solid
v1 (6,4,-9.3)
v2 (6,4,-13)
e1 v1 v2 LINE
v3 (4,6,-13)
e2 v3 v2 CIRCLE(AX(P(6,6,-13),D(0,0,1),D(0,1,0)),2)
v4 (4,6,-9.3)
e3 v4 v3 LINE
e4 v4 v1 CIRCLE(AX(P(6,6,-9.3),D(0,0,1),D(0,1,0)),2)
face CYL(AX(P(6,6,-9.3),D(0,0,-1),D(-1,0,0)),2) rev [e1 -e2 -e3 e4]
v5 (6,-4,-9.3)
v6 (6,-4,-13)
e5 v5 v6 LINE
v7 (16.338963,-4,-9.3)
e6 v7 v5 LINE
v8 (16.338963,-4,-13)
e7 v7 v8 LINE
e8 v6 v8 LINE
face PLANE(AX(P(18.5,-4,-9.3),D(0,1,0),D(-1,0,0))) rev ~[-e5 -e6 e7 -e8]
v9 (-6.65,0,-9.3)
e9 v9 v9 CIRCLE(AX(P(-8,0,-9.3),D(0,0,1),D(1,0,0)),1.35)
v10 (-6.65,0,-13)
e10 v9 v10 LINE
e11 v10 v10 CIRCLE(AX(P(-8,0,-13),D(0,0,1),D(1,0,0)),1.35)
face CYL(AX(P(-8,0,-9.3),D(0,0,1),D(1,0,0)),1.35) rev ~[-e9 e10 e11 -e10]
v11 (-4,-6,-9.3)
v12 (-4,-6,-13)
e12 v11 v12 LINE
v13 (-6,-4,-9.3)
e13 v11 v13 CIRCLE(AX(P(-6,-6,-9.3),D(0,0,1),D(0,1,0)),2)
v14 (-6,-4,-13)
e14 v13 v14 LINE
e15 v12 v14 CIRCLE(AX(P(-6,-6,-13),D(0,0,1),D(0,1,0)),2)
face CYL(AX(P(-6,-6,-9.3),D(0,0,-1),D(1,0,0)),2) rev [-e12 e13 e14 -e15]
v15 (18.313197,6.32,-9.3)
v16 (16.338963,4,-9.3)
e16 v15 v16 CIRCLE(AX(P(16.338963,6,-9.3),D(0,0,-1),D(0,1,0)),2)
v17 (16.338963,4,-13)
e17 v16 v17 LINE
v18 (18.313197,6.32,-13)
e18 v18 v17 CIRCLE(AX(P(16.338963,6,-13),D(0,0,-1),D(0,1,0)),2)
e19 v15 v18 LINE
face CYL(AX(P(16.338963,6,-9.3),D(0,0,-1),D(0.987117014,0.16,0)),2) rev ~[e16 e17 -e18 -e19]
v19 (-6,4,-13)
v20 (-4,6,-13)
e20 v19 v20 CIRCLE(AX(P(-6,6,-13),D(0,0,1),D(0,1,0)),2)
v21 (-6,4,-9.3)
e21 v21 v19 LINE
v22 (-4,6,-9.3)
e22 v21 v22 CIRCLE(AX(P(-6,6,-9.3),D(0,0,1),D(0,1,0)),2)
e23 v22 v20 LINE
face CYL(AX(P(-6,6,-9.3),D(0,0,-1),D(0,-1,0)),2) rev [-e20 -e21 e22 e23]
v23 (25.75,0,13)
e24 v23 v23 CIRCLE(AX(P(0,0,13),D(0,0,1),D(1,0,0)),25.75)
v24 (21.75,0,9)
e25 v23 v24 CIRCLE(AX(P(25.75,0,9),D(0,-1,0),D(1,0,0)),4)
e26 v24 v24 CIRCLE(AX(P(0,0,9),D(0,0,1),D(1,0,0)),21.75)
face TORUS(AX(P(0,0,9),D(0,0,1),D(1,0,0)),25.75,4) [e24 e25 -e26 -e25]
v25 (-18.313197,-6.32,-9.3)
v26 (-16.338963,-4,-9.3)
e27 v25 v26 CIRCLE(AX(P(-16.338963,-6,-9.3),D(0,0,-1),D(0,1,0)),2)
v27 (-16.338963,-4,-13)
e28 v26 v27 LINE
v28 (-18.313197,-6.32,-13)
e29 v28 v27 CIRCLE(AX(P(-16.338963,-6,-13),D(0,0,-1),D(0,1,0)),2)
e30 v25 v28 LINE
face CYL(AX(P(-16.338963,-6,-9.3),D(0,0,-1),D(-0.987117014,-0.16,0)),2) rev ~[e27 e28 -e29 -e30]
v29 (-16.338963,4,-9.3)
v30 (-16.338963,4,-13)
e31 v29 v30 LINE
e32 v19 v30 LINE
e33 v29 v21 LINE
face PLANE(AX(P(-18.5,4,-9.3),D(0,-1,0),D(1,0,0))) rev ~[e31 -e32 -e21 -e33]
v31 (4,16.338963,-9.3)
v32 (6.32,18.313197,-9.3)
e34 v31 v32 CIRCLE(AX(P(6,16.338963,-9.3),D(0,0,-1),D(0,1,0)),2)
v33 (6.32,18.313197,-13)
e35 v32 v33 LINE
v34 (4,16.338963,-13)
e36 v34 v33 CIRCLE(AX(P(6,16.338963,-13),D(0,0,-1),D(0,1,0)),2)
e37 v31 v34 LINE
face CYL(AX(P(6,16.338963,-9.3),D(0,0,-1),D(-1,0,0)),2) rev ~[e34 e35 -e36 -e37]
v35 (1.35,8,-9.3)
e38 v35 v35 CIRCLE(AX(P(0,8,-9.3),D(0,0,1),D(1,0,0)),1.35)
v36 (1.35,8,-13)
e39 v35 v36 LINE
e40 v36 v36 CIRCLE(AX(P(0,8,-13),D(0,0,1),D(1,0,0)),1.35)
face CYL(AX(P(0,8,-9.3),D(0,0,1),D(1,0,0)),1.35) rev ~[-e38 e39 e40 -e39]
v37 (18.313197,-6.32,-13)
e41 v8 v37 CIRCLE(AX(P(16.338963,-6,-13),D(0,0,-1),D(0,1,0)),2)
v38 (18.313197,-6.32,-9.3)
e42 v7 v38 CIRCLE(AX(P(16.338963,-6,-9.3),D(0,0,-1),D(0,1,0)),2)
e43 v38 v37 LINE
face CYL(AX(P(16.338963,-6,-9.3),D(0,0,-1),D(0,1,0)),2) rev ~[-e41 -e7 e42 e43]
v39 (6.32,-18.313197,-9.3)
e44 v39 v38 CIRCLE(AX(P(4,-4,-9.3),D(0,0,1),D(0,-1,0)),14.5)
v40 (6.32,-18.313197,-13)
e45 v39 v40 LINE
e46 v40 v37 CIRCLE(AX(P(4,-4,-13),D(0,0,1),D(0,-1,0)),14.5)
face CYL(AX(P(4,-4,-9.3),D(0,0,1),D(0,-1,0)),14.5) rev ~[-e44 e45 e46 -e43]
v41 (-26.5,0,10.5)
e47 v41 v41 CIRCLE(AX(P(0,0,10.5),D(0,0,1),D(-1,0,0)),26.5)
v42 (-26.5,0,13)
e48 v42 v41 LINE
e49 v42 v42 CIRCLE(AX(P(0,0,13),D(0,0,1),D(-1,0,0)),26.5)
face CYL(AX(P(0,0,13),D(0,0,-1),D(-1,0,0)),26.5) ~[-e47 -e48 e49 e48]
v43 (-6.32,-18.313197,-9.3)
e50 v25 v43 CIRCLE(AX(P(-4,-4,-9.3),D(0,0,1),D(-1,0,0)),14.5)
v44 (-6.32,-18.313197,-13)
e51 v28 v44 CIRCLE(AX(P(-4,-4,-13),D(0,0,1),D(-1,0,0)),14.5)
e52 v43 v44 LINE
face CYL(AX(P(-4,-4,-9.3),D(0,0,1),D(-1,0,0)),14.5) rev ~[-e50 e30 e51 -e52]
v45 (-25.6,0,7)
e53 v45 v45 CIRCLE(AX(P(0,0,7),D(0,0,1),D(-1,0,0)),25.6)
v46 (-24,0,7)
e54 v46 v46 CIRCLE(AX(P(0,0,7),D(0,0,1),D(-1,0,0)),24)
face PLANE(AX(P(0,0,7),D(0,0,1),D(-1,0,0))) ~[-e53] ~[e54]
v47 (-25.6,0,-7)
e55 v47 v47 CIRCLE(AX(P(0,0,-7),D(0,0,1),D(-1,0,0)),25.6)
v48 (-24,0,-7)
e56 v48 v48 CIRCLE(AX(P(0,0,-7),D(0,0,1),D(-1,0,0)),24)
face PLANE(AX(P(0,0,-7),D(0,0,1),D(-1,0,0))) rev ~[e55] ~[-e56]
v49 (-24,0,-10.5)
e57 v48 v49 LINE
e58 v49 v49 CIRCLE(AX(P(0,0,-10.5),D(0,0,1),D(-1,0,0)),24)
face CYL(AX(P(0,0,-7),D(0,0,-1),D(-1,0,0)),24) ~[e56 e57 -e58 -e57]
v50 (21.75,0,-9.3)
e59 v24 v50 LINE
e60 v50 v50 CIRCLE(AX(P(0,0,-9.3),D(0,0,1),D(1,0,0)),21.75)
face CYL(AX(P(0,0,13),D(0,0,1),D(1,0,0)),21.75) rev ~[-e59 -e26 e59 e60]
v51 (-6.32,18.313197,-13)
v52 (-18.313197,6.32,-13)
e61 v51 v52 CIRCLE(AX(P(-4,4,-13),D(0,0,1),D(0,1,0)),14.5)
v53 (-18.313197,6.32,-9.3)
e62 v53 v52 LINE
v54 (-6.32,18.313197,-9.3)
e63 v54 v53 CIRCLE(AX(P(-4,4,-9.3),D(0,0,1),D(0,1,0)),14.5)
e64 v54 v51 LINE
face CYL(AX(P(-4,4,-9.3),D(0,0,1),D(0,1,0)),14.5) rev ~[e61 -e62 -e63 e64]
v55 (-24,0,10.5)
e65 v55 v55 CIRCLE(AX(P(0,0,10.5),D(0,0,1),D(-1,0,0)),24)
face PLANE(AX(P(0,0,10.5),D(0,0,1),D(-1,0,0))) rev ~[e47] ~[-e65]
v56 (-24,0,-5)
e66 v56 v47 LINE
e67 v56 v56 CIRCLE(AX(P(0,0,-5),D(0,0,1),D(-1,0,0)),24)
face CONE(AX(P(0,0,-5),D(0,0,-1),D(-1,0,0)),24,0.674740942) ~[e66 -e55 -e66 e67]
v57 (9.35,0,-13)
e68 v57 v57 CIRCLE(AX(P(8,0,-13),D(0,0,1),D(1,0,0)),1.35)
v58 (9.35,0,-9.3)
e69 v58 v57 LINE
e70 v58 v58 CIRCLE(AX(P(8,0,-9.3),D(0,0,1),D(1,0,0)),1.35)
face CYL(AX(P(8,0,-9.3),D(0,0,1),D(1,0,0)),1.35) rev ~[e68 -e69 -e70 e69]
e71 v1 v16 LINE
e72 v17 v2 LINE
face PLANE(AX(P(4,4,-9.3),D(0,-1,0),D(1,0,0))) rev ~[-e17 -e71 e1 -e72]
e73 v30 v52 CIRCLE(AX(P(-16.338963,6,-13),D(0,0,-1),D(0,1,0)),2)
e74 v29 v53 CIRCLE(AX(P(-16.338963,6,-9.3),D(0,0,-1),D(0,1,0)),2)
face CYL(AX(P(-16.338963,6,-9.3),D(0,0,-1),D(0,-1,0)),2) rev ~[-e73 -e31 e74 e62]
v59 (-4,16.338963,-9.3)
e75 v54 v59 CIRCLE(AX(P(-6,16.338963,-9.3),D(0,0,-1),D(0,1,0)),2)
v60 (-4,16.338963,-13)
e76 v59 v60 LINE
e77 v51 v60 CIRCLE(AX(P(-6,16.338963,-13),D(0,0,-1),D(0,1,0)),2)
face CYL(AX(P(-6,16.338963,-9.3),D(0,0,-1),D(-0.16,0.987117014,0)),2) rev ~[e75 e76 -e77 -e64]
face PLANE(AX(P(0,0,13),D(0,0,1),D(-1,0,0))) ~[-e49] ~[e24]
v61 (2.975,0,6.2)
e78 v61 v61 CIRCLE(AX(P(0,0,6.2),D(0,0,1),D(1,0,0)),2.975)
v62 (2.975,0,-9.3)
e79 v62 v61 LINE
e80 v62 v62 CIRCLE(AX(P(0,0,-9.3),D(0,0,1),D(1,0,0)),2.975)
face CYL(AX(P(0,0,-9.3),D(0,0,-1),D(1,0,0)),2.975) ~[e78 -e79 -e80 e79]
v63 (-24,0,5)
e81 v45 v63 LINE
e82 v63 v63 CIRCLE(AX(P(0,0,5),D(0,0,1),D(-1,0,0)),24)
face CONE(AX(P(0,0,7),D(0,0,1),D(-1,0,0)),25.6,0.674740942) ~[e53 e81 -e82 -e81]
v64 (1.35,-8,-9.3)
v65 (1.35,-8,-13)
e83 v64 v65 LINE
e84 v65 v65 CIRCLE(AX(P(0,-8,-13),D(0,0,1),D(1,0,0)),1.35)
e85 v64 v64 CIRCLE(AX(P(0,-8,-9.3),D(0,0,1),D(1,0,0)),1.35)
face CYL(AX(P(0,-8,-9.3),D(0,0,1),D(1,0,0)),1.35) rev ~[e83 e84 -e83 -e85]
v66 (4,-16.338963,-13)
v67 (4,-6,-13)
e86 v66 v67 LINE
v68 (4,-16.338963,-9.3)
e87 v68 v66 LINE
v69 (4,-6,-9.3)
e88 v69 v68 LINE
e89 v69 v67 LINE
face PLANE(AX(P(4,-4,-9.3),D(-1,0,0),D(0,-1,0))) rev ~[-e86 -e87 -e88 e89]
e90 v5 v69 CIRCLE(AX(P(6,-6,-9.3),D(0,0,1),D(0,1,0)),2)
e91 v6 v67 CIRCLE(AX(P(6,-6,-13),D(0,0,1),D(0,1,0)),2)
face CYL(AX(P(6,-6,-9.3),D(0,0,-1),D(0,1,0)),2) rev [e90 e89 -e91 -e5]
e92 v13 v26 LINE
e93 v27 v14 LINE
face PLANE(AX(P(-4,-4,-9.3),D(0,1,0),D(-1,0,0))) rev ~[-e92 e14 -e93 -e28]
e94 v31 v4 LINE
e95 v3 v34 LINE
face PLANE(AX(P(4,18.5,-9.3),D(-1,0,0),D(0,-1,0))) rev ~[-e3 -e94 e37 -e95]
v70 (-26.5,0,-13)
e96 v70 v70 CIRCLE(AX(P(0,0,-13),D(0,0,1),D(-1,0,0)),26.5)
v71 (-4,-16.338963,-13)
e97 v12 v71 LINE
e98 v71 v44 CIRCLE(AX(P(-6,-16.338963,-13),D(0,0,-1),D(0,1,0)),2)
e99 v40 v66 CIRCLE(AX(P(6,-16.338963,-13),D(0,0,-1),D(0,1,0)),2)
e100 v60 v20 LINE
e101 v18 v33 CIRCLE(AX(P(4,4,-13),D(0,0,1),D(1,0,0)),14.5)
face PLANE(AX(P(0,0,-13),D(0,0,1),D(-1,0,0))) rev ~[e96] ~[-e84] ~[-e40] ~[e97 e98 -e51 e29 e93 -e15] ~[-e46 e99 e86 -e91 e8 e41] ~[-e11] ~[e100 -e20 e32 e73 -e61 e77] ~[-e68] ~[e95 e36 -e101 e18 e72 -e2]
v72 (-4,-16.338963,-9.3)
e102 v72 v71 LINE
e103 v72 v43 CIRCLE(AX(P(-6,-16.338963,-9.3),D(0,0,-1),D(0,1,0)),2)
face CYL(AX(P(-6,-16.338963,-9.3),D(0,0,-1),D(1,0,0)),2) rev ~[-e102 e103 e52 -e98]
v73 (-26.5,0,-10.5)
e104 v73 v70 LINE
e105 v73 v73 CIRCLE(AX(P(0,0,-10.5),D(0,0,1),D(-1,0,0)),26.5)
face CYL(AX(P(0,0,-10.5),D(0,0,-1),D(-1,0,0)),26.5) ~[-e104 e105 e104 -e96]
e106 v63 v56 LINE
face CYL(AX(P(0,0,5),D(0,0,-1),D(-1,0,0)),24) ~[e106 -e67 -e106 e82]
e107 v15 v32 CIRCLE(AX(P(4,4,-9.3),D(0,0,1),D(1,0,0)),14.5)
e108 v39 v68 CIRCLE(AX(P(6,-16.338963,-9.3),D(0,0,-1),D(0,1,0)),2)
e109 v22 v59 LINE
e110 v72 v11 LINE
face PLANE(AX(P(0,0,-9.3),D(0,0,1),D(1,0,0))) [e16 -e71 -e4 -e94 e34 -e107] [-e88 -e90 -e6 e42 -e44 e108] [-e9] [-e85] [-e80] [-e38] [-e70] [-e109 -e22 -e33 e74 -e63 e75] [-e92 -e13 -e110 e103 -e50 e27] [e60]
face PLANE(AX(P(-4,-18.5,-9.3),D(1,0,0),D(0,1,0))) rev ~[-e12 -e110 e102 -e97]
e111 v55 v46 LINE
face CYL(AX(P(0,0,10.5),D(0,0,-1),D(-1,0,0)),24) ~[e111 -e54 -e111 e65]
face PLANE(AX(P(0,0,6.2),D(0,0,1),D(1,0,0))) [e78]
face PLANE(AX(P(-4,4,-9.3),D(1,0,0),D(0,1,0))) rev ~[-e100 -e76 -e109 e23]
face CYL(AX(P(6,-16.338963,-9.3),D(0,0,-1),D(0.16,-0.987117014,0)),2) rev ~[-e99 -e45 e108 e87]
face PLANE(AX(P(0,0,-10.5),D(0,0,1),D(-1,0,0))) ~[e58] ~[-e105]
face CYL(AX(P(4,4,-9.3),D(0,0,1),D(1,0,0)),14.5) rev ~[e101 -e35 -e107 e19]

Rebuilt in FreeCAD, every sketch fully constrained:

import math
import FreeCAD as App
import Part
import Sketcher

V = App.Vector


def edges_at(feature, points):
    """Names of the edges that pass closest to the given points."""
    edges = feature.Shape.Edges
    near = lambda p: min(range(len(edges)), key=lambda i: edges[i].distToShape(Part.Vertex(*p))[0])
    return sorted({f"Edge{near(p) + 1}" for p in points})

doc = App.newDocument("Part")
body = doc.addObject("PartDesign::Body", "Body")

# Sketch on YZ plane
sketch1 = body.newObject("Sketcher::SketchObject", "Sketch")
sketch1.AttachmentSupport = (doc.getObject("YZ_Plane"), [""])
sketch1.MapMode = "FlatFace"
sketch1.addGeometry([
    Part.LineSegment(V(24, -5, 0), V(24, 5, 0)),  # 0
    Part.LineSegment(V(24, 5, 0), V(25.6, 7, 0)),  # 1
    Part.LineSegment(V(25.6, 7, 0), V(24, 7, 0)),  # 2
    Part.LineSegment(V(24, 7, 0), V(24, 10.5, 0)),  # 3
    Part.LineSegment(V(24, 10.5, 0), V(26.5, 10.5, 0)),  # 4
    Part.LineSegment(V(26.5, 10.5, 0), V(26.5, 13, 0)),  # 5
    Part.LineSegment(V(26.5, 13, 0), V(0, 13, 0)),  # 6
    Part.LineSegment(V(0, 13, 0), V(0, -13, 0)),  # 7
    Part.LineSegment(V(0, -13, 0), V(26.5, -13, 0)),  # 8
    Part.LineSegment(V(26.5, -13, 0), V(26.5, -10.5, 0)),  # 9
    Part.LineSegment(V(26.5, -10.5, 0), V(24, -10.5, 0)),  # 10
    Part.LineSegment(V(24, -10.5, 0), V(24, -7, 0)),  # 11
    Part.LineSegment(V(24, -7, 0), V(25.6, -7, 0)),  # 12
    Part.LineSegment(V(25.6, -7, 0), V(24, -5, 0)),  # 13
], False)
sketch1.addConstraint([
    Sketcher.Constraint("Coincident", 0, 2, 1, 1),
    Sketcher.Constraint("Coincident", 1, 2, 2, 1),
    Sketcher.Constraint("Coincident", 2, 2, 3, 1),
    Sketcher.Constraint("Coincident", 3, 2, 4, 1),
    Sketcher.Constraint("Coincident", 4, 2, 5, 1),
    Sketcher.Constraint("Coincident", 5, 2, 6, 1),
    Sketcher.Constraint("Coincident", 6, 2, 7, 1),
    Sketcher.Constraint("Coincident", 7, 2, 8, 1),
    Sketcher.Constraint("Coincident", 8, 2, 9, 1),
    Sketcher.Constraint("Coincident", 9, 2, 10, 1),
    Sketcher.Constraint("Coincident", 10, 2, 11, 1),
    Sketcher.Constraint("Coincident", 11, 2, 12, 1),
    Sketcher.Constraint("Coincident", 12, 2, 13, 1),
    Sketcher.Constraint("Coincident", 13, 2, 0, 1),
    Sketcher.Constraint("Vertical", 0),
    Sketcher.Constraint("Horizontal", 2),
    Sketcher.Constraint("Vertical", 3),
    Sketcher.Constraint("Horizontal", 4),
    Sketcher.Constraint("Vertical", 5),
    Sketcher.Constraint("Horizontal", 6),
    Sketcher.Constraint("Vertical", 7),
    Sketcher.Constraint("Horizontal", 8),
    Sketcher.Constraint("Vertical", 9),
    Sketcher.Constraint("Horizontal", 10),
    Sketcher.Constraint("Vertical", 11),
    Sketcher.Constraint("Horizontal", 12),
    Sketcher.Constraint("Symmetric", 6, 2, 7, 2, -1, 1),
    Sketcher.Constraint("Symmetric", 4, 2, 9, 2, -1),
    Sketcher.Constraint("Symmetric", 2, 2, 11, 2, -1),
    Sketcher.Constraint("Vertical", 0, 2, 2, 2),
    Sketcher.Constraint("Vertical", 1, 2, 12, 2),
    Sketcher.Constraint("Equal", 10, 5),
    Sketcher.Constraint("Equal", 1, 13),
    Sketcher.Constraint("DistanceY", 0, 1, 0, 2, 10.0),
    Sketcher.Constraint("DistanceY", 7, 2, 7, 1, 26.0),
    Sketcher.Constraint("DistanceX", 2, 2, 2, 1, 1.6),
    Sketcher.Constraint("DistanceX", 4, 1, 4, 2, 2.5),
    Sketcher.Constraint("DistanceX", 6, 2, 6, 1, 26.5),
    Sketcher.Constraint("DistanceY", 3, 1, 3, 2, 3.5),
])
revolution = body.newObject("PartDesign::Revolution", "Revolution")
revolution.Profile = sketch1
revolution.ReferenceAxis = (sketch1, ["V_Axis"])
revolution.Angle = 360

# Sketch on XY plane
sketch2 = body.newObject("Sketcher::SketchObject", "Sketch001")
sketch2.AttachmentSupport = (doc.getObject("XY_Plane"), [""])
sketch2.MapMode = "FlatFace"
sketch2.AttachmentOffset = App.Placement(V(0, 0, 13), App.Rotation())
sketch2.addGeometry(Part.Circle(V(0, 0, 0), V(0, 0, 1), 22), False)
sketch2.addConstraint([
    Sketcher.Constraint("Coincident", 0, 3, -1, 1),
    Sketcher.Constraint("Diameter", 0, 43.5),
])
pocket1 = body.newObject("PartDesign::Pocket", "Pocket")
pocket1.Profile = sketch2
pocket1.Length = 22.3
doc.recompute()

fillet = body.newObject("PartDesign::Fillet", "Fillet")
fillet.Base = (pocket1, edges_at(pocket1, [(-21.75, 0, 13)]))
fillet.Radius = 4

# Sketch on XY plane
sketch3 = body.newObject("Sketcher::SketchObject", "Sketch002")
sketch3.AttachmentSupport = (doc.getObject("XY_Plane"), [""])
sketch3.MapMode = "FlatFace"
sketch3.AttachmentOffset = App.Placement(V(0, 0, -9.3), App.Rotation())
sketch3.addGeometry(Part.Circle(V(8, 0, 0), V(0, 0, 1), 1.4), False)
sketch3.addConstraint([
    Sketcher.Constraint("PointOnObject", 0, 3, -1),
    Sketcher.Constraint("Diameter", 0, 2.7),
    Sketcher.Constraint("DistanceX", -1, 1, 0, 3, 8.0),
])
pocket2 = body.newObject("PartDesign::Pocket", "Pocket001")
pocket2.Profile = sketch3
pocket2.Type = "UpToFirst"

# Sketch on XY plane
sketch4 = body.newObject("Sketcher::SketchObject", "Sketch003")
sketch4.AttachmentSupport = (doc.getObject("XY_Plane"), [""])
sketch4.MapMode = "FlatFace"
sketch4.AttachmentOffset = App.Placement(V(0, 0, -9.3), App.Rotation())
sketch4.addGeometry([
    Part.LineSegment(V(-18, 4, 0), V(-4, 4, 0)),
    Part.LineSegment(V(-4, 4, 0), V(-4, 18, 0)),
    Part.ArcOfCircle(Part.Circle(V(-4, 4, 0), V(0, 0, 1), 15), math.radians(90), math.radians(180)),
], False)
sketch4.addConstraint([
    Sketcher.Constraint("Coincident", 0, 2, 1, 1),
    Sketcher.Constraint("Coincident", 1, 2, 2, 1),
    Sketcher.Constraint("Coincident", 2, 2, 0, 1),
    Sketcher.Constraint("Horizontal", 0),
    Sketcher.Constraint("Vertical", 1),
    Sketcher.Constraint("Coincident", 0, 2, 2, 3),
    Sketcher.Constraint("Radius", 2, 14.5),
    Sketcher.Constraint("DistanceX", 2, 3, -1, 1, 4.0),
    Sketcher.Constraint("DistanceY", -1, 1, 2, 3, 4.0),
])
pocket3 = body.newObject("PartDesign::Pocket", "Pocket002")
pocket3.Profile = sketch4
pocket3.Type = "UpToFirst"

# Sketch on XY plane
sketch5 = body.newObject("Sketcher::SketchObject", "Sketch004")
sketch5.AttachmentSupport = (doc.getObject("XY_Plane"), [""])
sketch5.MapMode = "FlatFace"
sketch5.AttachmentOffset = App.Placement(V(0, 0, -9.3), App.Rotation())
sketch5.addGeometry([
    Part.LineSegment(V(4, 18, 0), V(4, 4, 0)),
    Part.LineSegment(V(4, 4, 0), V(18, 4, 0)),
    Part.ArcOfCircle(Part.Circle(V(4, 4, 0), V(0, 0, 1), 15), math.radians(0), math.radians(90)),
], False)
sketch5.addConstraint([
    Sketcher.Constraint("Coincident", 0, 2, 1, 1),
    Sketcher.Constraint("Coincident", 1, 2, 2, 1),
    Sketcher.Constraint("Coincident", 2, 2, 0, 1),
    Sketcher.Constraint("Vertical", 0),
    Sketcher.Constraint("Horizontal", 1),
    Sketcher.Constraint("Coincident", 0, 2, 2, 3),
    Sketcher.Constraint("Radius", 2, 14.5),
    Sketcher.Constraint("DistanceX", -1, 1, 2, 3, 4.0),
    Sketcher.Constraint("DistanceY", -1, 1, 2, 3, 4.0),
])
pocket4 = body.newObject("PartDesign::Pocket", "Pocket003")
pocket4.Profile = sketch5
pocket4.Type = "UpToFirst"

# Sketch on XY plane
sketch6 = body.newObject("Sketcher::SketchObject", "Sketch005")
sketch6.AttachmentSupport = (doc.getObject("XY_Plane"), [""])
sketch6.MapMode = "FlatFace"
sketch6.AttachmentOffset = App.Placement(V(0, 0, -9.3), App.Rotation())
sketch6.addGeometry([
    Part.LineSegment(V(18, -4, 0), V(4, -4, 0)),
    Part.LineSegment(V(4, -4, 0), V(4, -18, 0)),
    Part.ArcOfCircle(Part.Circle(V(4, -4, 0), V(0, 0, 1), 15), math.radians(-90), math.radians(0)),
], False)
sketch6.addConstraint([
    Sketcher.Constraint("Coincident", 0, 2, 1, 1),
    Sketcher.Constraint("Coincident", 1, 2, 2, 1),
    Sketcher.Constraint("Coincident", 2, 2, 0, 1),
    Sketcher.Constraint("Horizontal", 0),
    Sketcher.Constraint("Vertical", 1),
    Sketcher.Constraint("Coincident", 0, 2, 2, 3),
    Sketcher.Constraint("Radius", 2, 14.5),
    Sketcher.Constraint("DistanceX", -1, 1, 2, 3, 4.0),
    Sketcher.Constraint("DistanceY", 2, 3, -1, 1, 4.0),
])
pocket5 = body.newObject("PartDesign::Pocket", "Pocket004")
pocket5.Profile = sketch6
pocket5.Type = "UpToFirst"

# Sketch on XY plane
sketch7 = body.newObject("Sketcher::SketchObject", "Sketch006")
sketch7.AttachmentSupport = (doc.getObject("XY_Plane"), [""])
sketch7.MapMode = "FlatFace"
sketch7.AttachmentOffset = App.Placement(V(0, 0, -9.3), App.Rotation())
sketch7.addGeometry([
    Part.LineSegment(V(-4, -18, 0), V(-4, -4, 0)),
    Part.LineSegment(V(-4, -4, 0), V(-18, -4, 0)),
    Part.ArcOfCircle(Part.Circle(V(-4, -4, 0), V(0, 0, 1), 15), math.radians(-180), math.radians(-90)),
], False)
sketch7.addConstraint([
    Sketcher.Constraint("Coincident", 0, 2, 1, 1),
    Sketcher.Constraint("Coincident", 1, 2, 2, 1),
    Sketcher.Constraint("Coincident", 2, 2, 0, 1),
    Sketcher.Constraint("Vertical", 0),
    Sketcher.Constraint("Horizontal", 1),
    Sketcher.Constraint("Coincident", 0, 2, 2, 3),
    Sketcher.Constraint("Radius", 2, 14.5),
    Sketcher.Constraint("DistanceX", 2, 3, -1, 1, 4.0),
    Sketcher.Constraint("DistanceY", 2, 3, -1, 1, 4.0),
])
pocket6 = body.newObject("PartDesign::Pocket", "Pocket005")
pocket6.Profile = sketch7
pocket6.Type = "UpToFirst"

# Sketch on XY plane
sketch8 = body.newObject("Sketcher::SketchObject", "Sketch007")
sketch8.AttachmentSupport = (doc.getObject("XY_Plane"), [""])
sketch8.MapMode = "FlatFace"
sketch8.AttachmentOffset = App.Placement(V(0, 0, -9.3), App.Rotation())
sketch8.addGeometry(Part.Circle(V(0, -8, 0), V(0, 0, 1), 1.4), False)
sketch8.addConstraint([
    Sketcher.Constraint("PointOnObject", 0, 3, -2),
    Sketcher.Constraint("Diameter", 0, 2.7),
    Sketcher.Constraint("DistanceY", 0, 3, -1, 1, 8.0),
])
pocket7 = body.newObject("PartDesign::Pocket", "Pocket006")
pocket7.Profile = sketch8
pocket7.Type = "UpToFirst"

# Sketch on XY plane
sketch9 = body.newObject("Sketcher::SketchObject", "Sketch008")
sketch9.AttachmentSupport = (doc.getObject("XY_Plane"), [""])
sketch9.MapMode = "FlatFace"
sketch9.AttachmentOffset = App.Placement(V(0, 0, -9.3), App.Rotation())
sketch9.addGeometry(Part.Circle(V(-8, 0, 0), V(0, 0, 1), 1.4), False)
sketch9.addConstraint([
    Sketcher.Constraint("PointOnObject", 0, 3, -1),
    Sketcher.Constraint("Diameter", 0, 2.7),
    Sketcher.Constraint("DistanceX", 0, 3, -1, 1, 8.0),
])
pocket8 = body.newObject("PartDesign::Pocket", "Pocket007")
pocket8.Profile = sketch9
pocket8.Type = "UpToFirst"

# Sketch on XY plane
sketch10 = body.newObject("Sketcher::SketchObject", "Sketch009")
sketch10.AttachmentSupport = (doc.getObject("XY_Plane"), [""])
sketch10.MapMode = "FlatFace"
sketch10.AttachmentOffset = App.Placement(V(0, 0, -9.3), App.Rotation())
sketch10.addGeometry(Part.Circle(V(0, 8, 0), V(0, 0, 1), 1.4), False)
sketch10.addConstraint([
    Sketcher.Constraint("PointOnObject", 0, 3, -2),
    Sketcher.Constraint("Diameter", 0, 2.7),
    Sketcher.Constraint("DistanceY", -1, 1, 0, 3, 8.0),
])
pocket9 = body.newObject("PartDesign::Pocket", "Pocket008")
pocket9.Profile = sketch10
pocket9.Type = "UpToFirst"

# Sketch on XY plane
sketch11 = body.newObject("Sketcher::SketchObject", "Sketch010")
sketch11.AttachmentSupport = (doc.getObject("XY_Plane"), [""])
sketch11.MapMode = "FlatFace"
sketch11.AttachmentOffset = App.Placement(V(0, 0, -9.3), App.Rotation())
sketch11.addGeometry(Part.Circle(V(0, 0, 0), V(0, 0, 1), 3), False)
sketch11.addConstraint([
    Sketcher.Constraint("Coincident", 0, 3, -1, 1),
    Sketcher.Constraint("Diameter", 0, 5.95),
])
pad1 = body.newObject("PartDesign::Pad", "Pad")
pad1.Profile = sketch11
pad1.Length = 15.5
doc.recompute()

fillet2 = body.newObject("PartDesign::Fillet", "Fillet001")
fillet2.Base = (pad1, edges_at(pad1, [
    (18.5, 4, -11.15),
    (4, 4, -11.15),
    (4, 18.5, -11.15),
    (18.5, -4, -11.15),
    (4, -18.5, -11.15),
    (4, -4, -11.15),
    (-18.5, -4, -11.15),
    (-4, -4, -11.15),
    (-4, -18.5, -11.15),
    (-18.5, 4, -11.15),
    (-4, 18.5, -11.15),
    (-4, 4, -11.15),
]))
fillet2.Radius = 2

doc.recompute()
